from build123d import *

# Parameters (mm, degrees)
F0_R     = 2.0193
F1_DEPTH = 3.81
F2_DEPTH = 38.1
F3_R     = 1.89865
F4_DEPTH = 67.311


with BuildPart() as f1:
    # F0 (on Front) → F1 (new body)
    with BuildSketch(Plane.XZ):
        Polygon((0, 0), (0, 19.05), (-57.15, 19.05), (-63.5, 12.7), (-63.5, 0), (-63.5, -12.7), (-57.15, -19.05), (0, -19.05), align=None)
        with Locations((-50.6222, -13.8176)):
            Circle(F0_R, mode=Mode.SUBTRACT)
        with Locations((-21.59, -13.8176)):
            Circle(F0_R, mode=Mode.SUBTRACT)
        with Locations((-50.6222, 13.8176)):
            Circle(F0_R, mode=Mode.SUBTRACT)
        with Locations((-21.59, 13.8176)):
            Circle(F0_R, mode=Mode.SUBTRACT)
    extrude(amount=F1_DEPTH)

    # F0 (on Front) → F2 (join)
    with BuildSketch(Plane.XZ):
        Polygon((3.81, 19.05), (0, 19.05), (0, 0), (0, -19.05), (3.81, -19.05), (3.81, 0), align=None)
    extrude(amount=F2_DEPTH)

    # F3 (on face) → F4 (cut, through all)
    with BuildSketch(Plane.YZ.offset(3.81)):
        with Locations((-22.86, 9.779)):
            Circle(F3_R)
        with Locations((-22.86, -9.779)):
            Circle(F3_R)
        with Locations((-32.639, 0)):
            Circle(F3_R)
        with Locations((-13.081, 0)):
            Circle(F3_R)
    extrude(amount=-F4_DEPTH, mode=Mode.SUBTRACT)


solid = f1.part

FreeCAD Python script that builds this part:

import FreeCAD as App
import Part
import Sketcher
from FreeCAD import Vector
Q = App.Units.Quantity

doc = App.newDocument("Part")
body = doc.addObject("PartDesign::Body", "Body")

sketch1 = body.newObject("Sketcher::SketchObject", "Sketch")
sketch1.AttachmentSupport = (doc.getObject("XZ_Plane"), [""])
sketch1.MapMode = "FlatFace"
sketch1.addGeometry(Part.LineSegment(Vector(0, 19.1, 0), Vector(-57.1, 19.1, 0)), False)
sketch1.addGeometry(Part.LineSegment(Vector(-57.1, 19.1, 0), Vector(-63.5, 12.7, 0)), False)
sketch1.addGeometry(Part.LineSegment(Vector(-63.5, 12.7, 0), Vector(-63.5, -12.7, 0)), False)
sketch1.addGeometry(Part.LineSegment(Vector(-63.5, -12.7, 0), Vector(-57.1, -19.1, 0)), False)
sketch1.addGeometry(Part.LineSegment(Vector(-57.1, -19.1, 0), Vector(0, -19.1, 0)), False)
sketch1.addGeometry(Part.LineSegment(Vector(0, -19.1, 0), Vector(0, 19.1, 0)), False)
sketch1.addGeometry(Part.Circle(Vector(-50.6, -13.8, 0), Vector(0, 0, 1), 2), False)
sketch1.addGeometry(Part.Circle(Vector(-21.6, -13.8, 0), Vector(0, 0, 1), 2), False)
sketch1.addGeometry(Part.Circle(Vector(-50.6, 13.8, 0), Vector(0, 0, 1), 2), False)
sketch1.addGeometry(Part.Circle(Vector(-21.6, 13.8, 0), Vector(0, 0, 1), 2), False)
sketch1.addConstraint(Sketcher.Constraint("Coincident", 0, 2, 1, 1))
sketch1.addConstraint(Sketcher.Constraint("Coincident", 1, 2, 2, 1))
sketch1.addConstraint(Sketcher.Constraint("Coincident", 2, 2, 3, 1))
sketch1.addConstraint(Sketcher.Constraint("Coincident", 3, 2, 4, 1))
sketch1.addConstraint(Sketcher.Constraint("Coincident", 4, 2, 5, 1))
sketch1.addConstraint(Sketcher.Constraint("Coincident", 5, 2, 0, 1))
sketch1.addConstraint(Sketcher.Constraint("Horizontal", 0))
sketch1.addConstraint(Sketcher.Constraint("Vertical", 2))
sketch1.addConstraint(Sketcher.Constraint("Horizontal", 4))
sketch1.addConstraint(Sketcher.Constraint("Vertical", 5))
sketch1.addConstraint(Sketcher.Constraint("Equal", 6, 7))
sketch1.addConstraint(Sketcher.Constraint("Equal", 7, 8))
sketch1.addConstraint(Sketcher.Constraint("Equal", 8, 9))
sketch1.addConstraint(Sketcher.Constraint("Symmetric", 4, 2, 5, 2, -1, 1))
sketch1.addConstraint(Sketcher.Constraint("Symmetric", 6, 3, 8, 3, -1))
sketch1.addConstraint(Sketcher.Constraint("Symmetric", 7, 3, 9, 3, -1))
sketch1.addConstraint(Sketcher.Constraint("Perpendicular", 1, 3))
sketch1.addConstraint(Sketcher.Constraint("Horizontal", 6, 3, 7, 3))
sketch1.addConstraint(Sketcher.Constraint("Vertical", 0, 2, 3, 2))
sketch1.addConstraint(Sketcher.Constraint("Equal", 1, 3))
sketch1.addConstraint(Sketcher.Constraint("DistanceY", 2, 2, 2, 1, Q("1 in")))
sketch1.addConstraint(Sketcher.Constraint("Diameter", 6, Q("0.159 in")))
sketch1.addConstraint(Sketcher.Constraint("DistanceY", 5, 1, 5, 2, Q("1.5 in")))
sketch1.addConstraint(Sketcher.Constraint("DistanceX", 0, 2, 0, 1, Q("2.25 in")))
sketch1.addConstraint(Sketcher.Constraint("DistanceX", 0, 2, 9, 3, Q("1.4 in")))
sketch1.addConstraint(Sketcher.Constraint("DistanceX", 6, 3, -1, 1, Q("1.993 in")))
sketch1.addConstraint(Sketcher.Constraint("DistanceY", 6, 3, -1, 1, Q("0.544 in")))
pad1 = body.newObject("PartDesign::Pad", "Pad")
pad1.Profile = sketch1
pad1.Length = Q("0.15 in")

sketch2 = body.newObject("Sketcher::SketchObject", "Sketch001")
sketch2.AttachmentSupport = (doc.getObject("XZ_Plane"), [""])
sketch2.MapMode = "FlatFace"
sketch2.addGeometry(Part.LineSegment(Vector(3.8, 19.1, 0), Vector(0, 19.1, 0)), False)
sketch2.addGeometry(Part.LineSegment(Vector(0, 19.1, 0), Vector(0, -19.1, 0)), False)
sketch2.addGeometry(Part.LineSegment(Vector(0, -19.1, 0), Vector(3.8, -19.1, 0)), False)
sketch2.addGeometry(Part.LineSegment(Vector(3.8, -19.1, 0), Vector(3.8, 19.1, 0)), False)
sketch2.addConstraint(Sketcher.Constraint("Coincident", 0, 2, 1, 1))
sketch2.addConstraint(Sketcher.Constraint("Coincident", 1, 2, 2, 1))
sketch2.addConstraint(Sketcher.Constraint("Coincident", 2, 2, 3, 1))
sketch2.addConstraint(Sketcher.Constraint("Coincident", 3, 2, 0, 1))
sketch2.addConstraint(Sketcher.Constraint("Horizontal", 0))
sketch2.addConstraint(Sketcher.Constraint("Vertical", 1))
sketch2.addConstraint(Sketcher.Constraint("Horizontal", 2))
sketch2.addConstraint(Sketcher.Constraint("Vertical", 3))
sketch2.addConstraint(Sketcher.Constraint("Symmetric", 0, 2, 1, 2, -1, 1))
sketch2.addConstraint(Sketcher.Constraint("DistanceY", 1, 2, 1, 1, Q("1.5 in")))
sketch2.addConstraint(Sketcher.Constraint("DistanceX", 0, 2, 0, 1, Q("0.15 in")))
pad2 = body.newObject("PartDesign::Pad", "Pad001")
pad2.Profile = sketch2
pad2.Length = Q("1.5 in")

sketch3 = body.newObject("Sketcher::SketchObject", "Sketch002")
sketch3.AttachmentSupport = (doc.getObject("YZ_Plane"), [""])
sketch3.MapMode = "FlatFace"
sketch3.AttachmentOffset = App.Placement(Vector(0, 0, 0.15 * 25.4), App.Rotation())
sketch3.addGeometry(Part.Circle(Vector(-22.9, 9.8, 0), Vector(0, 0, 1), 1.9), False)
sketch3.addGeometry(Part.Circle(Vector(-22.9, -9.8, 0), Vector(0, 0, 1), 1.9), False)
sketch3.addGeometry(Part.Circle(Vector(-32.6, 0, 0), Vector(0, 0, 1), 1.9), False)
sketch3.addGeometry(Part.Circle(Vector(-13.1, 0, 0), Vector(0, 0, 1), 1.9), False)
sketch3.addConstraint(Sketcher.Constraint("Equal", 0, 1))
sketch3.addConstraint(Sketcher.Constraint("Equal", 1, 2))
sketch3.addConstraint(Sketcher.Constraint("Equal", 2, 3))
sketch3.addConstraint(Sketcher.Constraint("Symmetric", 0, 3, 1, 3, -1))
sketch3.addConstraint(Sketcher.Constraint("PointOnObject", 2, 3, -1))
sketch3.addConstraint(Sketcher.Constraint("PointOnObject", 3, 3, -1))
sketch3.addConstraint(Sketcher.Constraint("Diameter", 0, Q("0.1495 in")))
sketch3.addConstraint(Sketcher.Constraint("DistanceX", 0, 3, -1, 1, Q("0.9 in")))
sketch3.addConstraint(Sketcher.Constraint("DistanceY", 1, 3, 0, 3, Q("0.77 in")))
sketch3.addConstraint(Sketcher.Constraint("DistanceX", 2, 3, 3, 3, Q("0.77 in")))
sketch3.addConstraint(Sketcher.Constraint("DistanceX", 2, 3, -1, 1, Q("1.285 in")))
pocket1 = body.newObject("PartDesign::Pocket", "Pocket")
pocket1.Profile = sketch3
pocket1.Type = "ThroughAll"

doc.recompute()
